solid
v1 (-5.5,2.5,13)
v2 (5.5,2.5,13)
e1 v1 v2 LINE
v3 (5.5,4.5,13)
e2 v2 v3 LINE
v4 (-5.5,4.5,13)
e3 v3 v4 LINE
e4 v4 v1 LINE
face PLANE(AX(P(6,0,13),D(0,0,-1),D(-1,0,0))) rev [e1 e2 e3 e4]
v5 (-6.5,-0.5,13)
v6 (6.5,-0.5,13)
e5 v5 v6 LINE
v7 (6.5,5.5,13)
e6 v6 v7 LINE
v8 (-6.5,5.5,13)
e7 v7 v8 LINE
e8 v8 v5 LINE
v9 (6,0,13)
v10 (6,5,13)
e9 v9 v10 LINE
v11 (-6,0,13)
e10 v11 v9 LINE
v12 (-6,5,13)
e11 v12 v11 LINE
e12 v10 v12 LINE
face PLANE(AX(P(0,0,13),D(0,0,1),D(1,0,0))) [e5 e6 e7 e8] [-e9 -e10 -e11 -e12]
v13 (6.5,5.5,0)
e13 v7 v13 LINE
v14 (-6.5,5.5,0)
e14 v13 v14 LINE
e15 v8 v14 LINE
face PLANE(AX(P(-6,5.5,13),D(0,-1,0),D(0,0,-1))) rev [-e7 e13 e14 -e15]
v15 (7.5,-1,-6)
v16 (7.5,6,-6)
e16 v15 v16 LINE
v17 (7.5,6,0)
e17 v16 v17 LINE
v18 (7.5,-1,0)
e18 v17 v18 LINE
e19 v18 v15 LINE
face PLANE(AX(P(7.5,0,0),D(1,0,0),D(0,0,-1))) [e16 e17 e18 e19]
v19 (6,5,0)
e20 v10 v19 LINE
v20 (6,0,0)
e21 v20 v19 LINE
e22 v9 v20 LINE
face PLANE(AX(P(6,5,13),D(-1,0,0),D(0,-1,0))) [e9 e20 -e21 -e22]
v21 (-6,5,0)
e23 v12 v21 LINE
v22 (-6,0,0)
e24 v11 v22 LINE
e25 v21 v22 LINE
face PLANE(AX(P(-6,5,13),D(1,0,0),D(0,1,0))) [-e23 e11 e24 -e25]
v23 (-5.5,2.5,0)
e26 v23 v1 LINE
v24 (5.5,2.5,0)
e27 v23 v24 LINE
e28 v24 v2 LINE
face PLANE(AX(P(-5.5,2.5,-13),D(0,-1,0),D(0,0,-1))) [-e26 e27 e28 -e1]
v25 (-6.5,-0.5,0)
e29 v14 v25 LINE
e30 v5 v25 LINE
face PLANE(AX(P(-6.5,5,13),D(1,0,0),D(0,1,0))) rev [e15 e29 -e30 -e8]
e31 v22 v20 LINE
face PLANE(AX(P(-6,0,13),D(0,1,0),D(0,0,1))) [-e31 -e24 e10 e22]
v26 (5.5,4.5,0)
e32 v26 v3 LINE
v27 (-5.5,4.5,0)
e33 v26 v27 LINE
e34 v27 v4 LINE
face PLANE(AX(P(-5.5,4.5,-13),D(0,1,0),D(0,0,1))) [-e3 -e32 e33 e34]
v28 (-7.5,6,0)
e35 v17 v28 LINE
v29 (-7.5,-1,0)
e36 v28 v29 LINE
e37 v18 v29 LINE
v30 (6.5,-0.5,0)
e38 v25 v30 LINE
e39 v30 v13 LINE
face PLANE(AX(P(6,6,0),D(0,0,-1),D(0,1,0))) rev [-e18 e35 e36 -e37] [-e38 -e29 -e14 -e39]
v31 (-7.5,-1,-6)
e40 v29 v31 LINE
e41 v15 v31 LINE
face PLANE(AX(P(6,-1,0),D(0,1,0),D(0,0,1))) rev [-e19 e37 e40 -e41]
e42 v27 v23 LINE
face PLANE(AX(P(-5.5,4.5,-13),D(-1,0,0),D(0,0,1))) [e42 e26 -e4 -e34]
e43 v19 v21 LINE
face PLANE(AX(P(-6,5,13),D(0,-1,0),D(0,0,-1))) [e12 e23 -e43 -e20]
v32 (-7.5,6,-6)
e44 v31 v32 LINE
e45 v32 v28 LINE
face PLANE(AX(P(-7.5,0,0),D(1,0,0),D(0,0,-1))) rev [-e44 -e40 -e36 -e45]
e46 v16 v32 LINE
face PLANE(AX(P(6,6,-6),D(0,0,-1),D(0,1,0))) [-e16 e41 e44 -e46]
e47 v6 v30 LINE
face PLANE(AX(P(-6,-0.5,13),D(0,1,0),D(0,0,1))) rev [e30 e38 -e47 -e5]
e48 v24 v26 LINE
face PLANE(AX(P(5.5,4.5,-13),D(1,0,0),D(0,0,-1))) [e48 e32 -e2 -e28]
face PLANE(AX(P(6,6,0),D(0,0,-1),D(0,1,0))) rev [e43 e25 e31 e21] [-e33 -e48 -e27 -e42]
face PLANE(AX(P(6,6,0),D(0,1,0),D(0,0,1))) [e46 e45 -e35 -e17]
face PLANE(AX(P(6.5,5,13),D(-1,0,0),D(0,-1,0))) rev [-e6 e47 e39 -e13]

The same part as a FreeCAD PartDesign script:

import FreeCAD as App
import Part
import Sketcher
from FreeCAD import Vector

doc = App.newDocument("Part")
body = doc.addObject("PartDesign::Body", "Body")

sketch1 = doc.addObject("Sketcher::SketchObject", "Sketch")
body.addObject(sketch1)
sketch1.AttachmentSupport = (doc.YZ_Plane, [""])
sketch1.MapMode = "FlatFace"
sketch1.addGeometry(Part.LineSegment(Vector(5, 13, 0), Vector(0, 13, 0)), False)
sketch1.addGeometry(Part.LineSegment(Vector(0, 13, 0), Vector(0, 0, 0)), False)
sketch1.addGeometry(Part.LineSegment(Vector(0, 0, 0), Vector(-1, 0, 0)), False)
sketch1.addGeometry(Part.LineSegment(Vector(-1, 0, 0), Vector(-1, -6, 0)), False)
sketch1.addGeometry(Part.LineSegment(Vector(-1, -6, 0), Vector(6, -6, 0)), False)
sketch1.addGeometry(Part.LineSegment(Vector(6, -6, 0), Vector(6, 0, 0)), False)
sketch1.addGeometry(Part.LineSegment(Vector(6, 0, 0), Vector(5, 0, 0)), False)
sketch1.addGeometry(Part.LineSegment(Vector(5, 0, 0), Vector(5, 13, 0)), False)
sketch1.addConstraint(Sketcher.Constraint("Coincident", 0, 2, 1, 1))
sketch1.addConstraint(Sketcher.Constraint("Coincident", 1, 2, 2, 1))
sketch1.addConstraint(Sketcher.Constraint("Coincident", 2, 2, 3, 1))
sketch1.addConstraint(Sketcher.Constraint("Coincident", 3, 2, 4, 1))
sketch1.addConstraint(Sketcher.Constraint("Coincident", 4, 2, 5, 1))
sketch1.addConstraint(Sketcher.Constraint("Coincident", 5, 2, 6, 1))
sketch1.addConstraint(Sketcher.Constraint("Coincident", 6, 2, 7, 1))
sketch1.addConstraint(Sketcher.Constraint("Coincident", 7, 2, 0, 1))
sketch1.addConstraint(Sketcher.Constraint("Horizontal", 0))
sketch1.addConstraint(Sketcher.Constraint("Vertical", 1))
sketch1.addConstraint(Sketcher.Constraint("Horizontal", 2))
sketch1.addConstraint(Sketcher.Constraint("Vertical", 3))
sketch1.addConstraint(Sketcher.Constraint("Horizontal", 4))
sketch1.addConstraint(Sketcher.Constraint("Vertical", 5))
sketch1.addConstraint(Sketcher.Constraint("Horizontal", 6))
sketch1.addConstraint(Sketcher.Constraint("Vertical", 7))
sketch1.addConstraint(Sketcher.Constraint("Coincident", 1, 2, -1, 1))
sketch1.addConstraint(Sketcher.Constraint("PointOnObject", 5, 2, -1))
sketch1.addConstraint(Sketcher.Constraint("Equal", 2, 6))
sketch1.addConstraint(Sketcher.Constraint("DistanceX", 0, 2, 0, 1, 5.0))
sketch1.addConstraint(Sketcher.Constraint("DistanceX", 2, 2, 2, 1, 1.0))
sketch1.addConstraint(Sketcher.Constraint("DistanceY", 1, 2, 1, 1, 13.0))
sketch1.addConstraint(Sketcher.Constraint("DistanceY", 3, 2, 3, 1, 6.0))
pad1 = doc.addObject("PartDesign::Pad", "Pad")
body.addObject(pad1)
pad1.Profile = sketch1
pad1.Length = 12
pad1.Midplane = True

sketch2 = doc.addObject("Sketcher::SketchObject", "Sketch001")
body.addObject(sketch2)
sketch2.AttachmentSupport = (doc.YZ_Plane, [""])
sketch2.MapMode = "FlatFace"
sketch2.addGeometry(Part.LineSegment(Vector(6, 0, 0), Vector(-1, 0, 0)), False)
sketch2.addGeometry(Part.LineSegment(Vector(-1, 0, 0), Vector(-1, -6, 0)), False)
sketch2.addGeometry(Part.LineSegment(Vector(-1, -6, 0), Vector(6, -6, 0)), False)
sketch2.addGeometry(Part.LineSegment(Vector(6, -6, 0), Vector(6, 0, 0)), False)
sketch2.addConstraint(Sketcher.Constraint("Coincident", 0, 2, 1, 1))
sketch2.addConstraint(Sketcher.Constraint("Coincident", 1, 2, 2, 1))
sketch2.addConstraint(Sketcher.Constraint("Coincident", 2, 2, 3, 1))
sketch2.addConstraint(Sketcher.Constraint("Coincident", 3, 2, 0, 1))
sketch2.addConstraint(Sketcher.Constraint("Horizontal", 0))
sketch2.addConstraint(Sketcher.Constraint("Vertical", 1))
sketch2.addConstraint(Sketcher.Constraint("Horizontal", 2))
sketch2.addConstraint(Sketcher.Constraint("Vertical", 3))
sketch2.addConstraint(Sketcher.Constraint("PointOnObject", 0, 2, -1))
sketch2.addConstraint(Sketcher.Constraint("DistanceX", 0, 2, 0, 1, 7.0))
sketch2.addConstraint(Sketcher.Constraint("DistanceY", 1, 2, 1, 1, 6.0))
sketch2.addConstraint(Sketcher.Constraint("DistanceX", 0, 2, -1, 1, 1.0))
pad2 = doc.addObject("PartDesign::Pad", "Pad001")
body.addObject(pad2)
pad2.Profile = sketch2
pad2.Length = 15
pad2.Midplane = True

sketch3 = doc.addObject("Sketcher::SketchObject", "Sketch002")
body.addObject(sketch3)
sketch3.AttachmentSupport = (doc.XY_Plane, [""])
sketch3.MapMode = "FlatFace"
sketch3.AttachmentOffset = App.Placement(Vector(0, 0, 13), App.Rotation())
sketch3.addGeometry(Part.LineSegment(Vector(-6, 5, 0), Vector(-6, 0, 0)), False)
sketch3.addGeometry(Part.LineSegment(Vector(-6, 0, 0), Vector(6, 0, 0)), False)
sketch3.addGeometry(Part.LineSegment(Vector(6, 0, 0), Vector(6, 5, 0)), False)
sketch3.addGeometry(Part.LineSegment(Vector(6, 5, 0), Vector(-6, 5, 0)), False)
sketch3.addGeometry(Part.LineSegment(Vector(5.5, 2.5, 0), Vector(-5.5, 2.5, 0)), False)
sketch3.addGeometry(Part.LineSegment(Vector(-5.5, 2.5, 0), Vector(-5.5, 4.5, 0)), False)
sketch3.addGeometry(Part.LineSegment(Vector(-5.5, 4.5, 0), Vector(5.5, 4.5, 0)), False)
sketch3.addGeometry(Part.LineSegment(Vector(5.5, 4.5, 0), Vector(5.5, 2.5, 0)), False)
sketch3.addConstraint(Sketcher.Constraint("Coincident", 0, 2, 1, 1))
sketch3.addConstraint(Sketcher.Constraint("Coincident", 1, 2, 2, 1))
sketch3.addConstraint(Sketcher.Constraint("Coincident", 2, 2, 3, 1))
sketch3.addConstraint(Sketcher.Constraint("Coincident", 3, 2, 0, 1))
sketch3.addConstraint(Sketcher.Constraint("Coincident", 4, 2, 5, 1))
sketch3.addConstraint(Sketcher.Constraint("Coincident", 5, 2, 6, 1))
sketch3.addConstraint(Sketcher.Constraint("Coincident", 6, 2, 7, 1))
sketch3.addConstraint(Sketcher.Constraint("Coincident", 7, 2, 4, 1))
sketch3.addConstraint(Sketcher.Constraint("Vertical", 0))
sketch3.addConstraint(Sketcher.Constraint("Horizontal", 1))
sketch3.addConstraint(Sketcher.Constraint("Vertical", 2))
sketch3.addConstraint(Sketcher.Constraint("Horizontal", 3))
sketch3.addConstraint(Sketcher.Constraint("Horizontal", 4))
sketch3.addConstraint(Sketcher.Constraint("Vertical", 5))
sketch3.addConstraint(Sketcher.Constraint("Horizontal", 6))
sketch3.addConstraint(Sketcher.Constraint("Vertical", 7))
sketch3.addConstraint(Sketcher.Constraint("Symmetric", 0, 2, 1, 2, -1, 1))
sketch3.addConstraint(Sketcher.Constraint("DistanceX", 1, 1, 1, 2, 12.0))
sketch3.addConstraint(Sketcher.Constraint("DistanceX", 4, 2, 4, 1, 11.0))
sketch3.addConstraint(Sketcher.Constraint("DistanceY", 0, 2, 0, 1, 5.0))
sketch3.addConstraint(Sketcher.Constraint("DistanceY", 5, 1, 5, 2, 2.0))
sketch3.addConstraint(Sketcher.Constraint("DistanceX", 4, 2, -1, 1, 5.5))
sketch3.addConstraint(Sketcher.Constraint("DistanceY", -1, 1, 4, 2, 2.5))
pocket1 = doc.addObject("PartDesign::Pocket", "Pocket")
body.addObject(pocket1)
pocket1.Profile = sketch3
pocket1.Length = 13

sketch4 = doc.addObject("Sketcher::SketchObject", "Sketch003")
body.addObject(sketch4)
sketch4.AttachmentSupport = (doc.XY_Plane, [""])
sketch4.MapMode = "FlatFace"
sketch4.addGeometry(Part.LineSegment(Vector(-6, 6, 0), Vector(-6, 0, 0)), False)
sketch4.addGeometry(Part.LineSegment(Vector(-6, 0, 0), Vector(6, 0, 0)), False)
sketch4.addGeometry(Part.LineSegment(Vector(6, 0, 0), Vector(6, 6, 0)), False)
sketch4.addGeometry(Part.LineSegment(Vector(6, 6, 0), Vector(-6, 6, 0)), False)
sketch4.addGeometry(Part.LineSegment(Vector(6, 0, 0), Vector(-6, 0, 0)), False)
sketch4.addGeometry(Part.LineSegment(Vector(-6, 0, 0), Vector(-6, 5, 0)), False)
sketch4.addGeometry(Part.LineSegment(Vector(-6, 5, 0), Vector(6, 5, 0)), False)
sketch4.addGeometry(Part.LineSegment(Vector(6, 5, 0), Vector(6, 0, 0)), False)
sketch4.addConstraint(Sketcher.Constraint("Coincident", 0, 2, 1, 1))
sketch4.addConstraint(Sketcher.Constraint("Coincident", 1, 2, 2, 1))
sketch4.addConstraint(Sketcher.Constraint("Coincident", 2, 2, 3, 1))
sketch4.addConstraint(Sketcher.Constraint("Coincident", 3, 2, 0, 1))
sketch4.addConstraint(Sketcher.Constraint("Coincident", 4, 2, 5, 1))
sketch4.addConstraint(Sketcher.Constraint("Coincident", 5, 2, 6, 1))
sketch4.addConstraint(Sketcher.Constraint("Coincident", 6, 2, 7, 1))
sketch4.addConstraint(Sketcher.Constraint("Coincident", 7, 2, 4, 1))
sketch4.addConstraint(Sketcher.Constraint("Vertical", 0))
sketch4.addConstraint(Sketcher.Constraint("Horizontal", 1))
sketch4.addConstraint(Sketcher.Constraint("Vertical", 2))
sketch4.addConstraint(Sketcher.Constraint("Horizontal", 3))
sketch4.addConstraint(Sketcher.Constraint("Horizontal", 4))
sketch4.addConstraint(Sketcher.Constraint("Vertical", 5))
sketch4.addConstraint(Sketcher.Constraint("Horizontal", 6))
sketch4.addConstraint(Sketcher.Constraint("Vertical", 7))
sketch4.addConstraint(Sketcher.Constraint("Symmetric", 4, 2, 7, 2, -1, 1))
sketch4.addConstraint(Sketcher.Constraint("DistanceX", 1, 1, 1, 2, 13.0))
sketch4.addConstraint(Sketcher.Constraint("DistanceX", 4, 2, 4, 1, 12.0))
sketch4.addConstraint(Sketcher.Constraint("DistanceY", 0, 2, 0, 1, 6.0))
sketch4.addConstraint(Sketcher.Constraint("DistanceY", 5, 1, 5, 2, 5.0))
sketch4.addConstraint(Sketcher.Constraint("DistanceX", 0, 2, -1, 1, 6.5))
sketch4.addConstraint(Sketcher.Constraint("DistanceY", 0, 2, -1, 1, 0.5))
pad3 = doc.addObject("PartDesign::Pad", "Pad002")
body.addObject(pad3)
pad3.Profile = sketch4
pad3.Length = 13

doc.recompute()
